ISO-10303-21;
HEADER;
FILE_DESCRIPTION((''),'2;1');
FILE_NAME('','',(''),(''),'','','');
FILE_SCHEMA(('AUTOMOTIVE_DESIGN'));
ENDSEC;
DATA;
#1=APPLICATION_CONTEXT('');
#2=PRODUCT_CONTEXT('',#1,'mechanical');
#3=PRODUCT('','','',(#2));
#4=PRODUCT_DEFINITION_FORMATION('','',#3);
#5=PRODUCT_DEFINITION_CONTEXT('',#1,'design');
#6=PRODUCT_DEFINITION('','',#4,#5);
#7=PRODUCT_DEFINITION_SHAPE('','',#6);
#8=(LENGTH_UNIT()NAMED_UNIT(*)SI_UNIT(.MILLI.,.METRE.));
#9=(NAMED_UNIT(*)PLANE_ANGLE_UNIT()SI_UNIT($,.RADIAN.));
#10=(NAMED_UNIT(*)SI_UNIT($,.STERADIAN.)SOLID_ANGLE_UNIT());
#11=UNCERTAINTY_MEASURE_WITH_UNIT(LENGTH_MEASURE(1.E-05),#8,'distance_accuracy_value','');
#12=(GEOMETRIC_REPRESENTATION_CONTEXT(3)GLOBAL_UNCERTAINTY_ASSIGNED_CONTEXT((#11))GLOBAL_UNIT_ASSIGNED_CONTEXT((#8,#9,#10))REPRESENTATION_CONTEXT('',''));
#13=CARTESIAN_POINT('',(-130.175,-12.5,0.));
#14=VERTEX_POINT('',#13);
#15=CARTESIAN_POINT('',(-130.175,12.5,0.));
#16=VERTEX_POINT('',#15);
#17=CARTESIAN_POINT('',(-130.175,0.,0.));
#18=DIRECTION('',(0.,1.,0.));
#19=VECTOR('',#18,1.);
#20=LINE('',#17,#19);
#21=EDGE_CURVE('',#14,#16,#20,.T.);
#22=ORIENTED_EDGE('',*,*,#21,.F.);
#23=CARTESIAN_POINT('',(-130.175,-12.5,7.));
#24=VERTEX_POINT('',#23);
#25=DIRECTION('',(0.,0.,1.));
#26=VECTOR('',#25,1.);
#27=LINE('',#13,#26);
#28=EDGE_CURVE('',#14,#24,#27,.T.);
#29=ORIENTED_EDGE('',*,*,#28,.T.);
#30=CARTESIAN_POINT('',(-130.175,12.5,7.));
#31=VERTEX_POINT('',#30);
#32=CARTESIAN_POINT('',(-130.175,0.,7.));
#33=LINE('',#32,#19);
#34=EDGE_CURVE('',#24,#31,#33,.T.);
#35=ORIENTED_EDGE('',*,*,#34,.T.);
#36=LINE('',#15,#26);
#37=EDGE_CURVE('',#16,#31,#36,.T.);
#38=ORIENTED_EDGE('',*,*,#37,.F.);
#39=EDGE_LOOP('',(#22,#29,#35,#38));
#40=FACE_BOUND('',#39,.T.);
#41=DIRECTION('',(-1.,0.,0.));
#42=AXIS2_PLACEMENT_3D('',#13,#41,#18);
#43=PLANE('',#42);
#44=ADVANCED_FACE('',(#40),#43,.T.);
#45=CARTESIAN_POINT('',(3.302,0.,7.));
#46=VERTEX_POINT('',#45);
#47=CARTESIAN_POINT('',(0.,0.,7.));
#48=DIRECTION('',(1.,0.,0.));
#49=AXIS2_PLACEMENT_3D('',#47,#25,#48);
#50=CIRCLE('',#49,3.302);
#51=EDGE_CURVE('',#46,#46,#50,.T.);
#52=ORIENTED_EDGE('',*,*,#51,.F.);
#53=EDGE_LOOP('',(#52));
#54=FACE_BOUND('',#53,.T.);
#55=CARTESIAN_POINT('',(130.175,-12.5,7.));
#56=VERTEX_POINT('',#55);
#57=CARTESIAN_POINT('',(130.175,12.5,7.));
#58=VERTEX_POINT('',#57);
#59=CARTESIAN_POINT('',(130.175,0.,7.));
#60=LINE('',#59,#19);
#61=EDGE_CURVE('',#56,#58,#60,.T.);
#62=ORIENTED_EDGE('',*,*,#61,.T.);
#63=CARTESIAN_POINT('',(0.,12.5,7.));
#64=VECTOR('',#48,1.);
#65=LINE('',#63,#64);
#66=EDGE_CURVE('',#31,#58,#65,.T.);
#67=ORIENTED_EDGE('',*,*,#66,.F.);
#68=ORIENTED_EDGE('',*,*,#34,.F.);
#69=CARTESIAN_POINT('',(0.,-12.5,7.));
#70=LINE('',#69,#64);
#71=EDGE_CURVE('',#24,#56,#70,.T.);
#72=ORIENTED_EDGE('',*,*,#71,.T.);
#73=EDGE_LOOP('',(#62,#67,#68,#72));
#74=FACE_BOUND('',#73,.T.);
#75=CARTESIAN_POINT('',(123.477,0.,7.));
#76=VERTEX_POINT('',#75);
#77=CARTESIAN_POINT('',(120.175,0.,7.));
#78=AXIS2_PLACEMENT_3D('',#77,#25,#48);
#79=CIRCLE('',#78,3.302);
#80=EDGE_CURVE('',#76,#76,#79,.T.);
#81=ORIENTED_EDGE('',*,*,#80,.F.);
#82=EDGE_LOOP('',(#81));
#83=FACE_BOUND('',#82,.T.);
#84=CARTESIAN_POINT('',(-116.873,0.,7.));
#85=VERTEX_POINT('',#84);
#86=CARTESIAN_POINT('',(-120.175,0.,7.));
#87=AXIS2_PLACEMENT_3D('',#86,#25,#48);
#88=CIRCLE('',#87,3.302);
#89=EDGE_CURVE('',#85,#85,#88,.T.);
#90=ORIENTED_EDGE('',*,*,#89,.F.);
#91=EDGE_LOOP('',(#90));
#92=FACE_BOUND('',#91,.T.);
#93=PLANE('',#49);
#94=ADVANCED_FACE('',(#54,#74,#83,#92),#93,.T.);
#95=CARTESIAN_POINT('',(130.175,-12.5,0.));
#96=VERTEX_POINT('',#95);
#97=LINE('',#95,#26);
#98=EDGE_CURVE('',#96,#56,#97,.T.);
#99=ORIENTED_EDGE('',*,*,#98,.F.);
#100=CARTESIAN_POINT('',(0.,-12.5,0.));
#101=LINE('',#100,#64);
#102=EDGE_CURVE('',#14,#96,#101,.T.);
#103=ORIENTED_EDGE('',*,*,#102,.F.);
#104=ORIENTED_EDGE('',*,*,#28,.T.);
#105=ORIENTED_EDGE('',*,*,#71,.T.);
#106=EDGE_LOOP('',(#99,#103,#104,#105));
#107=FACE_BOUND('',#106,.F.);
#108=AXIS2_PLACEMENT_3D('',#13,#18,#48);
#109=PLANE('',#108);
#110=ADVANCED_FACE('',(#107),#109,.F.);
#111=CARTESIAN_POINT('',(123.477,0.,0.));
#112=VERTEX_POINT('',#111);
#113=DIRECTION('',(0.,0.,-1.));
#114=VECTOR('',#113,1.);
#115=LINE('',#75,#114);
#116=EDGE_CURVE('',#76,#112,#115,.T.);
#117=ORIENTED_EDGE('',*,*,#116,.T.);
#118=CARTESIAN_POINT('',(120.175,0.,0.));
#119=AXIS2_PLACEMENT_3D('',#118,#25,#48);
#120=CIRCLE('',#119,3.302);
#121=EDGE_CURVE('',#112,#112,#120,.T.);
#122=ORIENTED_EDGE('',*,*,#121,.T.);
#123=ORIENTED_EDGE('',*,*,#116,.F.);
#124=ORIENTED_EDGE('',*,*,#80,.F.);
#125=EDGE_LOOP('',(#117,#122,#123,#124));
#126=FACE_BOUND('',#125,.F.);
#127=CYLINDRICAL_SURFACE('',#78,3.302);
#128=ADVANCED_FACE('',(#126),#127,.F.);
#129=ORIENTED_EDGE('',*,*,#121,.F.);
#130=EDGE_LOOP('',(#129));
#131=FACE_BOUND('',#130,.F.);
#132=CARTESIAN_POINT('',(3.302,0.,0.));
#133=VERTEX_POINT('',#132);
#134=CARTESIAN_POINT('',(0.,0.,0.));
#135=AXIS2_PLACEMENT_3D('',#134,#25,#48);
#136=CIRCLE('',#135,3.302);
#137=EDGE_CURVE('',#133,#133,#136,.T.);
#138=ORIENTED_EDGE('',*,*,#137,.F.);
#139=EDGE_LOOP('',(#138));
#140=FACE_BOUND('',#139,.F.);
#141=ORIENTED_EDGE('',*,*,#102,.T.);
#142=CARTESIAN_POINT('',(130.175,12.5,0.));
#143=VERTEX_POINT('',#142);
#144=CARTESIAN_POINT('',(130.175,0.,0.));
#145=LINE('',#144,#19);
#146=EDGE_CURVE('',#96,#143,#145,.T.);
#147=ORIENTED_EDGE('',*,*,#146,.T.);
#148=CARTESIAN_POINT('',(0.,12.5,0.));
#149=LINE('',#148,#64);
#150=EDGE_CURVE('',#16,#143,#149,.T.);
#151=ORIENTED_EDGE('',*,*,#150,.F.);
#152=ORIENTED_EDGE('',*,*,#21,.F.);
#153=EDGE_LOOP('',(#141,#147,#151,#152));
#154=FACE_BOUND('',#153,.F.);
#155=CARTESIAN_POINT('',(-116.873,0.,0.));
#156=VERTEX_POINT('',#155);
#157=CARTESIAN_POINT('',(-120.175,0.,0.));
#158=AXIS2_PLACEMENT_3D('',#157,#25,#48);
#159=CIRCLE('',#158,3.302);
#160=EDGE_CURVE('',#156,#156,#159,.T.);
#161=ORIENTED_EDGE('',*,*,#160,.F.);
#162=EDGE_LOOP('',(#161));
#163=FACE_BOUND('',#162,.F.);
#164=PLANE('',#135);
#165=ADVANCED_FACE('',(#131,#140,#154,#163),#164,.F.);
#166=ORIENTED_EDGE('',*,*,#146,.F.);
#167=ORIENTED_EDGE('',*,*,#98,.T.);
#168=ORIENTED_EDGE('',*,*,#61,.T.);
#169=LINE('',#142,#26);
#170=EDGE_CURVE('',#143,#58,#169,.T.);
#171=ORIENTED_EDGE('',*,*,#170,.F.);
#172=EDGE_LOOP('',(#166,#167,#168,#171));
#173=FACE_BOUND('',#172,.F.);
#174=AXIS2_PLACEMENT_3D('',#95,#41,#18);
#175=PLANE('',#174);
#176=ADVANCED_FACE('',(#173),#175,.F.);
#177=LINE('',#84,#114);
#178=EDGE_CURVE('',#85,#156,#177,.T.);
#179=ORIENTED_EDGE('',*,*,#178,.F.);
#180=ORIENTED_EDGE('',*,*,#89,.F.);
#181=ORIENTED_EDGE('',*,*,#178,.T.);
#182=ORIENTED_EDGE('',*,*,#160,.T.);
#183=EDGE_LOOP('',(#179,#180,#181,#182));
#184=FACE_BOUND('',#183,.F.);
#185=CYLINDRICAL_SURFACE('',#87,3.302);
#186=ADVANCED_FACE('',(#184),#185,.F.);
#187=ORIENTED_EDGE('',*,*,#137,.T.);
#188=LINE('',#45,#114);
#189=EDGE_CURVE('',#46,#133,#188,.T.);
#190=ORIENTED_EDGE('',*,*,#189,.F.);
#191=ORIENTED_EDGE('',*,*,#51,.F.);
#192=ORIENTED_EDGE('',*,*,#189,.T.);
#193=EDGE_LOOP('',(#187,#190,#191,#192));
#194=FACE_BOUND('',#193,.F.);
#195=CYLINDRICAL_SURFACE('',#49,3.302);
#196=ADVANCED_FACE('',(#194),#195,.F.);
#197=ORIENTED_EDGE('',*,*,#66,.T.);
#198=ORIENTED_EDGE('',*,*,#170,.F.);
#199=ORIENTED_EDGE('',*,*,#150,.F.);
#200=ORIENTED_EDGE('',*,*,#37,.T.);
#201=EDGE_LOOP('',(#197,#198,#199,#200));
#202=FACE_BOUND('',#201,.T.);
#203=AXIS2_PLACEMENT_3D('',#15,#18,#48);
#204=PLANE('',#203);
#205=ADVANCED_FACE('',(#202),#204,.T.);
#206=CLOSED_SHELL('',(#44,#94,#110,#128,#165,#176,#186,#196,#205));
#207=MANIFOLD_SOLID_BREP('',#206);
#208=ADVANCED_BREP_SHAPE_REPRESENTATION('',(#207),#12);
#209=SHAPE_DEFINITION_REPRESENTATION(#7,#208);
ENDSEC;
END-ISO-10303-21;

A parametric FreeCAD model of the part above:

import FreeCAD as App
import Part
import Sketcher
from FreeCAD import Vector
Q = App.Units.Quantity


def add_polygon(sketch, points):
    """Adds a closed chain of lines whose ends are joined by coincident constraints."""
    first, n = sketch.GeometryCount, len(points)
    for a, b in zip(points, points[1:] + points[:1]):
        sketch.addGeometry(Part.LineSegment(App.Vector(*a, 0), App.Vector(*b, 0)), False)
    for i in range(n):
        sketch.addConstraint(Sketcher.Constraint("Coincident", first + i, 2, first + (i + 1) % n, 1))

doc = App.newDocument("Part")
body = doc.addObject("PartDesign::Body", "Body")

# Sketch on XY plane
sketch1 = body.newObject("Sketcher::SketchObject", "Sketch")
sketch1.AttachmentSupport = (doc.getObject("XY_Plane"), [""])
sketch1.MapMode = "FlatFace"
add_polygon(sketch1, [(-130, 12), (-130, -12), (130, -12), (130, 12)])  # lines 0-3
sketch1.addConstraint(Sketcher.Constraint("Vertical", 0))
sketch1.addConstraint(Sketcher.Constraint("Horizontal", 1))
sketch1.addConstraint(Sketcher.Constraint("Vertical", 2))
sketch1.addConstraint(Sketcher.Constraint("Horizontal", 3))
sketch1.addConstraint(Sketcher.Constraint("Symmetric", 0, 2, 2, 2, -1, 1))
sketch1.addConstraint(Sketcher.Constraint("DistanceY", 0, 2, 0, 1, Q("25 mm")))
sketch1.addConstraint(Sketcher.Constraint("DistanceX", 1, 1, 1, 2, Q("260.35 mm")))
pad1 = body.newObject("PartDesign::Pad", "Pad")
pad1.Profile = sketch1
pad1.Length = 7

# Sketch on XY plane
sketch2 = body.newObject("Sketcher::SketchObject", "Sketch001")
sketch2.AttachmentSupport = (doc.getObject("XY_Plane"), [""])
sketch2.MapMode = "FlatFace"
sketch2.AttachmentOffset = App.Placement(Vector(0, 0, 7), App.Rotation())
sketch2.addGeometry(Part.Circle(Vector(-120.2, 0, 0), Vector(0, 0, 1), 3.3), False)
sketch2.addGeometry(Part.Circle(Vector(0, 0, 0), Vector(0, 0, 1), 3.3), False)
sketch2.addGeometry(Part.Circle(Vector(120.2, 0, 0), Vector(0, 0, 1), 3.3), False)
sketch2.addConstraint(Sketcher.Constraint("Coincident", 1, 3, -1, 1))
sketch2.addConstraint(Sketcher.Constraint("Equal", 0, 1))
sketch2.addConstraint(Sketcher.Constraint("Equal", 1, 2))
sketch2.addConstraint(Sketcher.Constraint("Symmetric", 0, 3, 2, 3, -1, 1))
sketch2.addConstraint(Sketcher.Constraint("PointOnObject", 0, 3, -1))
sketch2.addConstraint(Sketcher.Constraint("Diameter", 0, Q("6.604 mm")))
sketch2.addConstraint(Sketcher.Constraint("DistanceX", 0, 3, 2, 3, Q("240.35 mm")))
pocket1 = body.newObject("PartDesign::Pocket", "Pocket")
pocket1.Profile = sketch2
pocket1.Type = "ThroughAll"

doc.recompute()
